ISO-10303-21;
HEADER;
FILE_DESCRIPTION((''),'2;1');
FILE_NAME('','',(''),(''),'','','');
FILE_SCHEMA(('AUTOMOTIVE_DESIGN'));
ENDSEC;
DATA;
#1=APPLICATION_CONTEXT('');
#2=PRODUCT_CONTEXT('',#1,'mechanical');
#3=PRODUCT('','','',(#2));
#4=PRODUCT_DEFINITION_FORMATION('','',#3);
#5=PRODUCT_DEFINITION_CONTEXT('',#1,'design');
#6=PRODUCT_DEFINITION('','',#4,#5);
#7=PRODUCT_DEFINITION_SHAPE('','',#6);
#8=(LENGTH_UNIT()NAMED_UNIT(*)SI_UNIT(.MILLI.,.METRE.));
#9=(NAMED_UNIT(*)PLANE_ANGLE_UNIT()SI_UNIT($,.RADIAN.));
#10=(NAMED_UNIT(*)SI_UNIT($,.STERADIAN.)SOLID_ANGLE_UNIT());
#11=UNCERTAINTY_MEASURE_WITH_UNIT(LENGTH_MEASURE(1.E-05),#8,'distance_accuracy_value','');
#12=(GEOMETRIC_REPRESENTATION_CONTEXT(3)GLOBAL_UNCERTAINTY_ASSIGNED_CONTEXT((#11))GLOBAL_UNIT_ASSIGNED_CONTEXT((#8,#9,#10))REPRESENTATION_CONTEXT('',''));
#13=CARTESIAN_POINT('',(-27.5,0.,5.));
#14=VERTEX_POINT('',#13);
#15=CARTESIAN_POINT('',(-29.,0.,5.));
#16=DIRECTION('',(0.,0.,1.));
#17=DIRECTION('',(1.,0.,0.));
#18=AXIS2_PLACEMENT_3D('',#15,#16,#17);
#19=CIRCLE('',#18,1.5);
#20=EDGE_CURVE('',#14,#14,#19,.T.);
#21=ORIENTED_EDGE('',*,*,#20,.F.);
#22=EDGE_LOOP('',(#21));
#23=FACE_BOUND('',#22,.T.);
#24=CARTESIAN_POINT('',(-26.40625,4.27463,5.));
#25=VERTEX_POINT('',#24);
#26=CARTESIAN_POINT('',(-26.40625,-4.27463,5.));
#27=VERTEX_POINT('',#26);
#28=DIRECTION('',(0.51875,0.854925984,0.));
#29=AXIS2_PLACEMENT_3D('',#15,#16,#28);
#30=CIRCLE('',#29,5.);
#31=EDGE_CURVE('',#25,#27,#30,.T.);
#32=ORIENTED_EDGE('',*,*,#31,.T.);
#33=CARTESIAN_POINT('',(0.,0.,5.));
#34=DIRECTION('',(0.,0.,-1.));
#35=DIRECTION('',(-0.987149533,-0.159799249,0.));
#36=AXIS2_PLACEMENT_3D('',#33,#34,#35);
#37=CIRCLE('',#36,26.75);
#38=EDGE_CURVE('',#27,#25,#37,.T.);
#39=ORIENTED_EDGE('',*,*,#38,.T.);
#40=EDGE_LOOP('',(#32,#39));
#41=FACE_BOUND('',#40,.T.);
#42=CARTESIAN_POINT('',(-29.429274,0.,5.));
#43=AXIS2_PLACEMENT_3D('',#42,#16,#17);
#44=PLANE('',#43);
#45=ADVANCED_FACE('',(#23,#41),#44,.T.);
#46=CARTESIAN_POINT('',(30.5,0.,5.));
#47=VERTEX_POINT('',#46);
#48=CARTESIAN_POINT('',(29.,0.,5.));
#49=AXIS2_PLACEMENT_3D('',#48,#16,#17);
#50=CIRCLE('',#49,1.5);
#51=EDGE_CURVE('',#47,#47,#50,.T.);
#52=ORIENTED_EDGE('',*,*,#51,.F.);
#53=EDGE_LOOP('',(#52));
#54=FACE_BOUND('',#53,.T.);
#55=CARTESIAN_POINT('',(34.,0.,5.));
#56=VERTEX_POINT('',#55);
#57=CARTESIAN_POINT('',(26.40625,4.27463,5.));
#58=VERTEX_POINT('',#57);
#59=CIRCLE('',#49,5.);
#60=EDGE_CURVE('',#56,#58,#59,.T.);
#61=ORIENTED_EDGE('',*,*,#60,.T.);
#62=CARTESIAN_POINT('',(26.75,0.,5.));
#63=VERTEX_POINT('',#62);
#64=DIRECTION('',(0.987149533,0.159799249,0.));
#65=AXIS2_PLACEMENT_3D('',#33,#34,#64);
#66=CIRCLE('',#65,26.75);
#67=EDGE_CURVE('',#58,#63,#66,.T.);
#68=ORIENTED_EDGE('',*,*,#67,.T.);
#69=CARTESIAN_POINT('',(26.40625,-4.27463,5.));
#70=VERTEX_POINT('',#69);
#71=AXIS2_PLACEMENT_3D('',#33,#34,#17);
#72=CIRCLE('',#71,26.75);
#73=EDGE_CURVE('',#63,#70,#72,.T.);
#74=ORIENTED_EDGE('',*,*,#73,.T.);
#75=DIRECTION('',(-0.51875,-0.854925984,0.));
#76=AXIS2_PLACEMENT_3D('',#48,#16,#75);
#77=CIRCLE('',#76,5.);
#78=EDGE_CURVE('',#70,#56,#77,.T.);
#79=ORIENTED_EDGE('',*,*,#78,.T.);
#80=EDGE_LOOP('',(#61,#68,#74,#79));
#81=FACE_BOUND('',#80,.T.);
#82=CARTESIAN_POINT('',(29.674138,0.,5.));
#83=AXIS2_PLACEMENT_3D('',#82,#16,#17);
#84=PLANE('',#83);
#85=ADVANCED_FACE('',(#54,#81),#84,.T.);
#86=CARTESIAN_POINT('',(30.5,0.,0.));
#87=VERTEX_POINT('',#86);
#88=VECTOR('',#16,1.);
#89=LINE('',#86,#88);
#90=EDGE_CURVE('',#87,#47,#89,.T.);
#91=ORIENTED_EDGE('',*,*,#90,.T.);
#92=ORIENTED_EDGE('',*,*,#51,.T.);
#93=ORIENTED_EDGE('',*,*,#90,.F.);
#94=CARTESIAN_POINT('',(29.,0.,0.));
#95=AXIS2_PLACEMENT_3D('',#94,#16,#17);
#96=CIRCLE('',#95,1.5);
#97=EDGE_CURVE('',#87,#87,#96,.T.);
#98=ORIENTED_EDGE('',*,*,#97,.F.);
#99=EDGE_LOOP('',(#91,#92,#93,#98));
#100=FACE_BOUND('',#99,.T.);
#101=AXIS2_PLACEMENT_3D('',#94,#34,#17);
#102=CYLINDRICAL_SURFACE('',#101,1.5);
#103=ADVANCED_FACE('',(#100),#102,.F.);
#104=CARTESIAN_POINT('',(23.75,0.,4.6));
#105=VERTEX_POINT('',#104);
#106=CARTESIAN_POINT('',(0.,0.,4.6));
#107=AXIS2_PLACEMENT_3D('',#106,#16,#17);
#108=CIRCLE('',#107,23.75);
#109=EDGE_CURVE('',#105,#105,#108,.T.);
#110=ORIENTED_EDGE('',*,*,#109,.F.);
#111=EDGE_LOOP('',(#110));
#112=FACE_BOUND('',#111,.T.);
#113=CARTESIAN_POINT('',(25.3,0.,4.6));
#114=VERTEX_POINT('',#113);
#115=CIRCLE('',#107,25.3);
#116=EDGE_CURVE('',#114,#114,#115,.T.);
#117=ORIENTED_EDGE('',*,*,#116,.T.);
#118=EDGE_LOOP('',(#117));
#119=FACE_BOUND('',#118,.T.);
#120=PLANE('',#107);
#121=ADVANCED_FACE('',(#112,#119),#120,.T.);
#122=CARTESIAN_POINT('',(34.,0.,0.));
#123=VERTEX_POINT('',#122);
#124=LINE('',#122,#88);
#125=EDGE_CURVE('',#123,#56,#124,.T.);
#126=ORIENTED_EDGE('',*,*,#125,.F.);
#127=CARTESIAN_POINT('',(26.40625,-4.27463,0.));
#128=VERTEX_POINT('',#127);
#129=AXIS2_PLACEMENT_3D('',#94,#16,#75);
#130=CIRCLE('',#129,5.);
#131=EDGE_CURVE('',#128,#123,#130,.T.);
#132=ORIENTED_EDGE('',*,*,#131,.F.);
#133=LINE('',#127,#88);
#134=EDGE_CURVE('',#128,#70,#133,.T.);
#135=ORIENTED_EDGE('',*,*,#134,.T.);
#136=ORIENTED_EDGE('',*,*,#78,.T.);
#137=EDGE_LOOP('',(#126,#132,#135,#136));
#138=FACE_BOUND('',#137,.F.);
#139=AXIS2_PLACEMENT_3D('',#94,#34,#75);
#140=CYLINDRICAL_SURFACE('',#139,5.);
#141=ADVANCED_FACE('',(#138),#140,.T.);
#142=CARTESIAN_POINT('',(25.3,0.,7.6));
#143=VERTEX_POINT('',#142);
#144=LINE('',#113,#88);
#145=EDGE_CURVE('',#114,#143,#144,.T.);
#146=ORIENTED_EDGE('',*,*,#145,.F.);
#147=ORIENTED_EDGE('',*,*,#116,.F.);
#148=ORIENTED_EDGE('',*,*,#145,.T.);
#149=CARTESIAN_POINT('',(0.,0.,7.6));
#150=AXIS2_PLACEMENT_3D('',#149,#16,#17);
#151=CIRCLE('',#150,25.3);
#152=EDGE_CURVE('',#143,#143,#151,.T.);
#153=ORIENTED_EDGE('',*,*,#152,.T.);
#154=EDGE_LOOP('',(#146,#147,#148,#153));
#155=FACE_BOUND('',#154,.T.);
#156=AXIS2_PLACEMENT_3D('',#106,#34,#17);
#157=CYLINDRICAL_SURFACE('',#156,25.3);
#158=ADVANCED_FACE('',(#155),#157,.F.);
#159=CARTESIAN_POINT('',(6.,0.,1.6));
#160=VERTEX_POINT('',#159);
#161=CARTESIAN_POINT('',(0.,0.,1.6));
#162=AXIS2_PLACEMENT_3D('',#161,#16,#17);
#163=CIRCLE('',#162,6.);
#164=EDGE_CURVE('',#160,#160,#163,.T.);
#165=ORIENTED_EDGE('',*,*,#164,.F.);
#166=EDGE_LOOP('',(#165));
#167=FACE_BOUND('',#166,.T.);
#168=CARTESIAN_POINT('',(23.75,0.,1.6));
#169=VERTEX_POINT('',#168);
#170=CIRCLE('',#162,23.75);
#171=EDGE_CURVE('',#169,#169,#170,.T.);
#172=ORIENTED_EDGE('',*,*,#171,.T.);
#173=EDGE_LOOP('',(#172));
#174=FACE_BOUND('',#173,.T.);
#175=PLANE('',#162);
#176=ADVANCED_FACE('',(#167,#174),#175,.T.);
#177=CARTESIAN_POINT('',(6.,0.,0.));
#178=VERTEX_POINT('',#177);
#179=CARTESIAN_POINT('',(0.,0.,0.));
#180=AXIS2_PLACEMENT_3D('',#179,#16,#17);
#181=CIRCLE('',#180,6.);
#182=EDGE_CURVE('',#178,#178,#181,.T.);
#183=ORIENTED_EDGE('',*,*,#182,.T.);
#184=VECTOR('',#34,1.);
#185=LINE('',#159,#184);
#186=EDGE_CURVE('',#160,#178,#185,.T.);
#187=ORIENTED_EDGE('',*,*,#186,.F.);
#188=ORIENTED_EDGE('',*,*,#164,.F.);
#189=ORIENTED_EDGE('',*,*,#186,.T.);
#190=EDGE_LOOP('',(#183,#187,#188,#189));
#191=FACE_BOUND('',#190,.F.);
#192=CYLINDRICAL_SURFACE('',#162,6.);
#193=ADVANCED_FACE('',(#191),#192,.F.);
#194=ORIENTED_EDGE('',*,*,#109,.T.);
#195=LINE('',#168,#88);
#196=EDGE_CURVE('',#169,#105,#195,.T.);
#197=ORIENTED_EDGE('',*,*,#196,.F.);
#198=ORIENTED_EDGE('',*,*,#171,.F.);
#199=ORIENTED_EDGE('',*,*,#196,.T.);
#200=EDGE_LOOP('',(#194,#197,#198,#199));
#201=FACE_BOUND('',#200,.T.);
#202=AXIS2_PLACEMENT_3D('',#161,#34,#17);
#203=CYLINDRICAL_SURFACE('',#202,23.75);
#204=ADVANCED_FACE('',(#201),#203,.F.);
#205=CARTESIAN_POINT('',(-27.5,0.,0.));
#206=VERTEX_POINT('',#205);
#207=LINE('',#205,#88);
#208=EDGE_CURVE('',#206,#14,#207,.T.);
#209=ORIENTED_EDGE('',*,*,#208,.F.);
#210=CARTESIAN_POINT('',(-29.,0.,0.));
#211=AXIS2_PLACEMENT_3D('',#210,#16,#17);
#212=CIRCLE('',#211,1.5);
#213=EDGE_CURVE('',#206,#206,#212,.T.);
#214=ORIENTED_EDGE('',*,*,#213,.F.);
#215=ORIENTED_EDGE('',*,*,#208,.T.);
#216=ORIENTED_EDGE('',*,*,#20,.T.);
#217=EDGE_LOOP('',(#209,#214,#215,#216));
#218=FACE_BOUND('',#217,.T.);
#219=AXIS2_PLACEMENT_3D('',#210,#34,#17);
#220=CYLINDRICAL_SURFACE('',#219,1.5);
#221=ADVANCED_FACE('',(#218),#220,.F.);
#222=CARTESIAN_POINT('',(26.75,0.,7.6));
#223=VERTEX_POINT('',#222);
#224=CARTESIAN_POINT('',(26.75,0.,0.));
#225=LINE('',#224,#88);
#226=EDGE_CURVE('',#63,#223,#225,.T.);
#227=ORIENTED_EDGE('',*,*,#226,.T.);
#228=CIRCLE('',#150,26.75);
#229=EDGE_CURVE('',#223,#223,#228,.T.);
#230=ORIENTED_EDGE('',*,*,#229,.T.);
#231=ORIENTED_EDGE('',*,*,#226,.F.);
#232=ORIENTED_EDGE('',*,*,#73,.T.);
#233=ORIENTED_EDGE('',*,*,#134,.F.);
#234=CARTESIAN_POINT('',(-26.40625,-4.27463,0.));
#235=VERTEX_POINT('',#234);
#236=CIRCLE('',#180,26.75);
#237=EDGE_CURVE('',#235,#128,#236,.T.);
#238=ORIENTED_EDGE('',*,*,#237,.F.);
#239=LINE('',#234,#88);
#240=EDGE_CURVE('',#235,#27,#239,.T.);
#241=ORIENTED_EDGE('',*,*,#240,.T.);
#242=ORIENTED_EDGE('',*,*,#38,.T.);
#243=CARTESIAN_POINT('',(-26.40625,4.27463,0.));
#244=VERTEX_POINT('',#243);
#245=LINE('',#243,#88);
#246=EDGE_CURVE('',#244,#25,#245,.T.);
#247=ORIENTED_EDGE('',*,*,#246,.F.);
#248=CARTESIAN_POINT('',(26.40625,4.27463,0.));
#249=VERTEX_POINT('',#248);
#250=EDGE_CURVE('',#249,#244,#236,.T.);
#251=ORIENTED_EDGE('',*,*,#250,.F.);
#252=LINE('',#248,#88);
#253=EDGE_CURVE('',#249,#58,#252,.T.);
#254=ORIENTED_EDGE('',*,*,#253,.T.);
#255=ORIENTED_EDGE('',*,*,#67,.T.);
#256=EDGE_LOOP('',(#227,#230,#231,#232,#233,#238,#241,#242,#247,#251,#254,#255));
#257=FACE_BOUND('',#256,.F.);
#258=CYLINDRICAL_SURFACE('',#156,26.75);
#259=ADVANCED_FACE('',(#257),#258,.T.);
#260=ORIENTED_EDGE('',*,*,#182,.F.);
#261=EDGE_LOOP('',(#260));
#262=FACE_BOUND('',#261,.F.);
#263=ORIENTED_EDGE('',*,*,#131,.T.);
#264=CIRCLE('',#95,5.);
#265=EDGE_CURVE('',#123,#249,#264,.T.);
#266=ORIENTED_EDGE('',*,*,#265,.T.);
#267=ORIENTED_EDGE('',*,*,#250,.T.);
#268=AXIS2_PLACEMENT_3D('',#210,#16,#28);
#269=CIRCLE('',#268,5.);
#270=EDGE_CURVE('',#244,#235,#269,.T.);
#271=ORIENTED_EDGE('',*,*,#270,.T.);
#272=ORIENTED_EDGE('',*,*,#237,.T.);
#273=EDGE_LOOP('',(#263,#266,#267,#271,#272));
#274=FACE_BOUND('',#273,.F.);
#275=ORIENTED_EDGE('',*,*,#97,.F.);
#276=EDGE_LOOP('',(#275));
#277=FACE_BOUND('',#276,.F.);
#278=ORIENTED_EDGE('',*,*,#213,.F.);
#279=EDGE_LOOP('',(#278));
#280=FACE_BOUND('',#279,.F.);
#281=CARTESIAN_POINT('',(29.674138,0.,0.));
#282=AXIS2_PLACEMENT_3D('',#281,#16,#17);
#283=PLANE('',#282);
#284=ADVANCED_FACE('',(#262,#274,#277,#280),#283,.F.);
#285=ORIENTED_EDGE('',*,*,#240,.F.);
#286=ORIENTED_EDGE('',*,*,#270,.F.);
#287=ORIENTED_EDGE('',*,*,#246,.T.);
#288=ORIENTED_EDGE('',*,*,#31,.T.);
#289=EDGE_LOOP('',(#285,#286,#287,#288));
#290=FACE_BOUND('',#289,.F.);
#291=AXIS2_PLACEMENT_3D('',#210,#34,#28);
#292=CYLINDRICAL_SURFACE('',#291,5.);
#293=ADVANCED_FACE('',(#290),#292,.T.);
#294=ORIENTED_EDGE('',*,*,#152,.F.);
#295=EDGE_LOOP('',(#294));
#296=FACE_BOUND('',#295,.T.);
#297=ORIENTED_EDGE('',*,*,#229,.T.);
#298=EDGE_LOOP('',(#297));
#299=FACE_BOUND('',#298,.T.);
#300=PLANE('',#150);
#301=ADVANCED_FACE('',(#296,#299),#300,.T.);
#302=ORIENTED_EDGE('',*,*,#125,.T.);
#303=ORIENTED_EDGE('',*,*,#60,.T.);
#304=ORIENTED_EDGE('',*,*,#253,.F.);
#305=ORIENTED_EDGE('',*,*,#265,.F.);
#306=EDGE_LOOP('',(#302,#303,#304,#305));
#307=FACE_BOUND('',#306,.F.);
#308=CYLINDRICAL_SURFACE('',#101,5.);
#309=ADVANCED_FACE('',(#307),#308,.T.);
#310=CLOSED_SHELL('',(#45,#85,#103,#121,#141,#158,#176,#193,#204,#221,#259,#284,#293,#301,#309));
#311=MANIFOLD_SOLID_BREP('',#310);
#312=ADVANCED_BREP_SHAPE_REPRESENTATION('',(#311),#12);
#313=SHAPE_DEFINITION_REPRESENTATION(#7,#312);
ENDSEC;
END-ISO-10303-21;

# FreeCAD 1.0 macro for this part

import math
import FreeCAD as App
import Part
import Sketcher
Q = App.Units.Quantity

doc = App.newDocument("Part")
params = doc.addObject("Spreadsheet::Sheet", "Params")
for row, (alias, value) in enumerate([
    ("sketch1_diameter", "53.5 mm"),
    ("pad1_length", "1.6 mm"),
    ("sketch2_diameter", "53.5 mm"),
    ("sketch2_diameter2", "47.5 mm"),
    ("pad2_length", "3 mm"),
    ("sketch3_diameter", "53.5 mm"),
    ("sketch3_diameter2", "50.6 mm"),
    ("pad3_length", "3 mm"),
    ("sketch4_diameter", "12 mm"),
    ("pocket1_length", "25 mm"),
    ("sketch5_diameter", "3 mm"),
    ("sketch5_radius", "5 mm"),
    ("sketch5_radius2", "26.75 mm"),
    ("pad4_length", "5 mm"),
], start=1):
    params.set(f"A{row}", alias)
    params.set(f"B{row}", "=" + value)
    params.setAlias(f"B{row}", alias)

body = doc.addObject("PartDesign::Body", "Body")

# Sketch on XY plane
sketch1 = body.newObject("Sketcher::SketchObject", "Sketch")
sketch1.AttachmentSupport = (doc.getObject("XY_Plane"), [""])
sketch1.MapMode = "FlatFace"
sketch1.addGeometry(Part.Circle(App.Vector(0, 0, 0), App.Vector(0, 0, 1), 27), False)
sketch1.addConstraint([
    Sketcher.Constraint("Coincident", 0, 3, -1, 1),
    Sketcher.Constraint("Diameter", 0, Q("53.5 mm")),
])
sketch1.setExpression("Constraints[1]", "Params.sketch1_diameter")
pad1 = body.newObject("PartDesign::Pad", "Pad")
pad1.Profile = sketch1
pad1.setExpression("Length", "Params.pad1_length")

# Sketch on XY plane
sketch2 = body.newObject("Sketcher::SketchObject", "Sketch001")
sketch2.AttachmentSupport = (doc.getObject("XY_Plane"), [""])
sketch2.MapMode = "FlatFace"
sketch2.AttachmentOffset = App.Placement(App.Vector(0, 0, 1.6), App.Rotation())
sketch2.addGeometry([
    Part.Circle(App.Vector(0, 0, 0), App.Vector(0, 0, 1), 27),
    Part.Circle(App.Vector(0, 0, 0), App.Vector(0, 0, 1), 24),
], False)
sketch2.addConstraint([
    Sketcher.Constraint("Coincident", 0, 3, -1, 1),
    Sketcher.Constraint("Coincident", 1, 3, -1, 1),
    Sketcher.Constraint("Diameter", 0, Q("53.5 mm")),
    Sketcher.Constraint("Diameter", 1, Q("47.5 mm")),
])
sketch2.setExpression("Constraints[2]", "Params.sketch2_diameter")
sketch2.setExpression("Constraints[3]", "Params.sketch2_diameter2")
pad2 = body.newObject("PartDesign::Pad", "Pad001")
pad2.Profile = sketch2
pad2.setExpression("Length", "Params.pad2_length")

# Sketch on XY plane
sketch3 = body.newObject("Sketcher::SketchObject", "Sketch002")
sketch3.AttachmentSupport = (doc.getObject("XY_Plane"), [""])
sketch3.MapMode = "FlatFace"
sketch3.AttachmentOffset = App.Placement(App.Vector(0, 0, 4.6), App.Rotation())
sketch3.addGeometry([
    Part.Circle(App.Vector(0, 0, 0), App.Vector(0, 0, 1), 27),
    Part.Circle(App.Vector(0, 0, 0), App.Vector(0, 0, 1), 25),
], False)
sketch3.addConstraint([
    Sketcher.Constraint("Coincident", 0, 3, -1, 1),
    Sketcher.Constraint("Coincident", 1, 3, -1, 1),
    Sketcher.Constraint("Diameter", 0, Q("53.5 mm")),
    Sketcher.Constraint("Diameter", 1, Q("50.6 mm")),
])
sketch3.setExpression("Constraints[2]", "Params.sketch3_diameter")
sketch3.setExpression("Constraints[3]", "Params.sketch3_diameter2")
pad3 = body.newObject("PartDesign::Pad", "Pad002")
pad3.Profile = sketch3
pad3.setExpression("Length", "Params.pad3_length")

# Sketch on XY plane
sketch4 = body.newObject("Sketcher::SketchObject", "Sketch003")
sketch4.AttachmentSupport = (doc.getObject("XY_Plane"), [""])
sketch4.MapMode = "FlatFace"
sketch4.AttachmentOffset = App.Placement(App.Vector(0, 0, 1.6), App.Rotation())
sketch4.addGeometry(Part.Circle(App.Vector(0, 0, 0), App.Vector(0, 0, 1), 6), False)
sketch4.addConstraint([
    Sketcher.Constraint("Coincident", 0, 3, -1, 1),
    Sketcher.Constraint("Diameter", 0, Q("12 mm")),
])
sketch4.setExpression("Constraints[1]", "Params.sketch4_diameter")
pocket1 = body.newObject("PartDesign::Pocket", "Pocket")
pocket1.Profile = sketch4
pocket1.setExpression("Length", "Params.pocket1_length")

# Sketch on XY plane
sketch5 = body.newObject("Sketcher::SketchObject", "Sketch004")
sketch5.AttachmentSupport = (doc.getObject("XY_Plane"), [""])
sketch5.MapMode = "FlatFace"
sketch5.addGeometry([
    Part.ArcOfCircle(Part.Circle(App.Vector(0, 0, 0), App.Vector(0, 0, 1), 26.8), math.radians(170.8), math.radians(189.2)),  # 0
    Part.ArcOfCircle(Part.Circle(App.Vector(-29, 0, 0), App.Vector(0, 0, 1), 5), math.radians(59), math.radians(301)),  # 1
    Part.Circle(App.Vector(-29, 0, 0), App.Vector(0, 0, 1), 1.5),  # 2
    Part.ArcOfCircle(Part.Circle(App.Vector(29, 0, 0), App.Vector(0, 0, 1), 5), math.radians(-121), math.radians(0)),  # 3
    Part.ArcOfCircle(Part.Circle(App.Vector(29, 0, 0), App.Vector(0, 0, 1), 5), math.radians(0), math.radians(121)),  # 4
    Part.ArcOfCircle(Part.Circle(App.Vector(0, 0, 0), App.Vector(0, 0, 1), 26.8), math.radians(0), math.radians(9.2)),  # 5
    Part.ArcOfCircle(Part.Circle(App.Vector(0, 0, 0), App.Vector(0, 0, 1), 26.8), math.radians(-9.2), math.radians(0)),  # 6
    Part.Circle(App.Vector(29, 0, 0), App.Vector(0, 0, 1), 1.5),  # 7
], False)
sketch5.addConstraint([
    Sketcher.Constraint("Coincident", 0, 1, 1, 1),
    Sketcher.Constraint("Coincident", 1, 2, 0, 2),
    Sketcher.Constraint("Tangent", 3, 2, 4, 1),
    Sketcher.Constraint("Coincident", 4, 2, 5, 2),
    Sketcher.Constraint("Tangent", 5, 1, 6, 2),
    Sketcher.Constraint("Coincident", 6, 1, 3, 1),
    Sketcher.Constraint("Coincident", 0, 3, -1, 1),
    Sketcher.Constraint("Coincident", 5, 3, -1, 1),
    Sketcher.Constraint("Coincident", 2, 3, 1, 3),
    Sketcher.Constraint("Coincident", 7, 3, 3, 3),
    Sketcher.Constraint("Equal", 1, 3),
    Sketcher.Constraint("Equal", 3, 4),
    Sketcher.Constraint("Equal", 0, 5),
    Sketcher.Constraint("Equal", 5, 6),
    Sketcher.Constraint("Equal", 2, 7),
    Sketcher.Constraint("Symmetric", 1, 3, 3, 3, -1, 1),
    Sketcher.Constraint("PointOnObject", 1, 3, -1),
    Sketcher.Constraint("PointOnObject", 3, 2, -1),
    Sketcher.Constraint("PointOnObject", 5, 1, -1),
    Sketcher.Constraint("Diameter", 2, Q("3 mm")),
    Sketcher.Constraint("Radius", 1, Q("5 mm")),
    Sketcher.Constraint("Radius", 0, Q("26.75 mm")),
    Sketcher.Constraint("DistanceX", 1, 3, -1, 1, Q("29 mm")),
])
sketch5.setExpression("Constraints[19]", "Params.sketch5_diameter")
sketch5.setExpression("Constraints[20]", "Params.sketch5_radius")
sketch5.setExpression("Constraints[21]", "Params.sketch5_radius2")
pad4 = body.newObject("PartDesign::Pad", "Pad003")
pad4.Profile = sketch5
pad4.setExpression("Length", "Params.pad4_length")

doc.recompute()
